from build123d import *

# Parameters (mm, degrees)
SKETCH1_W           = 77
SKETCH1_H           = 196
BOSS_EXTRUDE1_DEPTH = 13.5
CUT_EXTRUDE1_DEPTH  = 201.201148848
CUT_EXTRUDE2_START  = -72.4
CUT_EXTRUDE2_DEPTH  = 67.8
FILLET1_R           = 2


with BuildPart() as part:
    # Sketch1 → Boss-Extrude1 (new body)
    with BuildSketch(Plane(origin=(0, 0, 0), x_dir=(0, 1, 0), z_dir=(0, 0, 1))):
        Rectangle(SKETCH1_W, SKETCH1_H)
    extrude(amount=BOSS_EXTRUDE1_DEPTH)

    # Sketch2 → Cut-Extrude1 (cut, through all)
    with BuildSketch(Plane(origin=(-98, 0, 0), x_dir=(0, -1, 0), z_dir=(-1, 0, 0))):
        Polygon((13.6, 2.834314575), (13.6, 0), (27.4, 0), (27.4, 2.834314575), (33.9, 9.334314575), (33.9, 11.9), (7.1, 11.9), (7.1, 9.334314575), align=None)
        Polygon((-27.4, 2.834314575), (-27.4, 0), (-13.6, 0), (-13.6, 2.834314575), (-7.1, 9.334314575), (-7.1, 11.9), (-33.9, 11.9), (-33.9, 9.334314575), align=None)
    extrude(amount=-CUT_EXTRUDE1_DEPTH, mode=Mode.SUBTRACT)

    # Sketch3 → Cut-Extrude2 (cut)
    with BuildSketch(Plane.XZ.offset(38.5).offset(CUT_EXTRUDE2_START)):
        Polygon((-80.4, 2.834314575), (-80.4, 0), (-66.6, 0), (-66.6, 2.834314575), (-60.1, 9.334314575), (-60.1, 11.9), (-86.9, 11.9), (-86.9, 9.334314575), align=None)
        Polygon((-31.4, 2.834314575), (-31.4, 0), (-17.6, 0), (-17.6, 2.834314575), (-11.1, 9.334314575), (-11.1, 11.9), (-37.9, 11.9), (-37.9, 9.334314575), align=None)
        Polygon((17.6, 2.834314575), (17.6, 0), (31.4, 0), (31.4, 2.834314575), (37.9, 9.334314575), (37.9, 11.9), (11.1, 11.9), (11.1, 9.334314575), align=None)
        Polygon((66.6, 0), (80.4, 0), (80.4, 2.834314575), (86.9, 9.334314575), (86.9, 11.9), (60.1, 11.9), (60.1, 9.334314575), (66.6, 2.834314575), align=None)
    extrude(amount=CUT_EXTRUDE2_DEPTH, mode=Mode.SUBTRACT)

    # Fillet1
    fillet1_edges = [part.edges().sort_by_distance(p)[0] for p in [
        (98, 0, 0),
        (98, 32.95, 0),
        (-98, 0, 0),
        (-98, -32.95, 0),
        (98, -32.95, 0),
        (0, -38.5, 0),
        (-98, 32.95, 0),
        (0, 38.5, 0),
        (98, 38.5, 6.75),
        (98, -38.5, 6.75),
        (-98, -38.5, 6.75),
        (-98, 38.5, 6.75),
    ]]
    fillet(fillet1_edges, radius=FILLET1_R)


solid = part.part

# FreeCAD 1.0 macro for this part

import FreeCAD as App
import Part
import Sketcher

V = App.Vector
Q = App.Units.Quantity


def edges_at(feature, points):
    """Names of the edges that pass closest to the given points."""
    edges = feature.Shape.Edges
    near = lambda p: min(range(len(edges)), key=lambda i: edges[i].distToShape(Part.Vertex(*p))[0])
    return sorted({f"Edge{near(p) + 1}" for p in points})


def add_polygon(sketch, points):
    """Adds a closed chain of lines whose ends are joined by coincident constraints."""
    first, n = sketch.GeometryCount, len(points)
    for a, b in zip(points, points[1:] + points[:1]):
        sketch.addGeometry(Part.LineSegment(App.Vector(*a, 0), App.Vector(*b, 0)), False)
    for i in range(n):
        sketch.addConstraint(Sketcher.Constraint("Coincident", first + i, 2, first + (i + 1) % n, 1))

doc = App.newDocument("Part")
body = doc.addObject("PartDesign::Body", "Body")

# Sketch on XY plane
sketch1 = body.newObject("Sketcher::SketchObject", "Sketch")
sketch1.AttachmentSupport = (doc.getObject("XY_Plane"), [""])
sketch1.MapMode = "FlatFace"
add_polygon(sketch1, [(-98, -38.5), (98, -38.5), (98, 38.5), (-98, 38.5)])  # lines 0-3
sketch1.addConstraint(Sketcher.Constraint("Horizontal", 0))
sketch1.addConstraint(Sketcher.Constraint("Vertical", 1))
sketch1.addConstraint(Sketcher.Constraint("Horizontal", 2))
sketch1.addConstraint(Sketcher.Constraint("Vertical", 3))
sketch1.addConstraint(Sketcher.Constraint("Symmetric", 0, 2, 2, 2, -1, 1))
sketch1.addConstraint(Sketcher.Constraint("DistanceX", 0, 1, 0, 2, Q("196 mm")))
sketch1.addConstraint(Sketcher.Constraint("DistanceY", 1, 1, 1, 2, Q("77 mm")))
pad1 = body.newObject("PartDesign::Pad", "Pad")
pad1.Profile = sketch1
pad1.Length = 13.5

# Sketch on YZ plane
sketch2 = body.newObject("Sketcher::SketchObject", "Sketch001")
sketch2.AttachmentSupport = (doc.getObject("YZ_Plane"), [""])
sketch2.MapMode = "FlatFace"
sketch2.AttachmentOffset = App.Placement(V(0, 0, -98), App.Rotation())
add_polygon(sketch2, [(-13.6, 2.834315), (-13.6, 0), (-27.4, 0), (-27.4, 2.834315), (-33.9, 9.334315), (-33.9, 11.9), (-7.1, 11.9), (-7.1, 9.334315)])  # lines 0-7
add_polygon(sketch2, [(27.4, 2.834315), (27.4, 0), (13.6, 0), (13.6, 2.834315), (7.1, 9.334315), (7.1, 11.9), (33.9, 11.9), (33.9, 9.334315)])  # lines 8-15
sketch2.addConstraint(Sketcher.Constraint("Vertical", 0))
sketch2.addConstraint(Sketcher.Constraint("Horizontal", 1))
sketch2.addConstraint(Sketcher.Constraint("Vertical", 2))
sketch2.addConstraint(Sketcher.Constraint("Vertical", 4))
sketch2.addConstraint(Sketcher.Constraint("Horizontal", 5))
sketch2.addConstraint(Sketcher.Constraint("Vertical", 6))
sketch2.addConstraint(Sketcher.Constraint("Vertical", 8))
sketch2.addConstraint(Sketcher.Constraint("Horizontal", 9))
sketch2.addConstraint(Sketcher.Constraint("Vertical", 10))
sketch2.addConstraint(Sketcher.Constraint("Vertical", 12))
sketch2.addConstraint(Sketcher.Constraint("Horizontal", 13))
sketch2.addConstraint(Sketcher.Constraint("Vertical", 14))
sketch2.addConstraint(Sketcher.Constraint("Symmetric", 1, 2, 8, 2, -1, 1))
sketch2.addConstraint(Sketcher.Constraint("Symmetric", 0, 2, 9, 2, -2))
sketch2.addConstraint(Sketcher.Constraint("Symmetric", 6, 2, 11, 2, -2))
sketch2.addConstraint(Sketcher.Constraint("Symmetric", 4, 2, 13, 2, -2))
sketch2.addConstraint(Sketcher.Constraint("Perpendicular", 3, 7))
sketch2.addConstraint(Sketcher.Constraint("Perpendicular", 7, 11))
sketch2.addConstraint(Sketcher.Constraint("Perpendicular", 11, 15))
sketch2.addConstraint(Sketcher.Constraint("Horizontal", 3, 2, 6, 2))
sketch2.addConstraint(Sketcher.Constraint("Horizontal", 2, 2, 7, 2))
sketch2.addConstraint(Sketcher.Constraint("Horizontal", 7, 2, 10, 2))
sketch2.addConstraint(Sketcher.Constraint("Horizontal", 11, 2, 14, 2))
sketch2.addConstraint(Sketcher.Constraint("DistanceX", 1, 2, 1, 1, Q("13.8 mm")))
sketch2.addConstraint(Sketcher.Constraint("DistanceX", 5, 1, 5, 2, Q("26.8 mm")))
sketch2.addConstraint(Sketcher.Constraint("DistanceX", 0, 2, 8, 2, Q("41 mm")))
sketch2.addConstraint(Sketcher.Constraint("DistanceY", -1, 1, 4, 2, Q("11.9 mm")))
sketch2.addConstraint(Sketcher.Constraint("DistanceY", 0, 2, 0, 1, Q("2.834315 mm")))
pocket1 = body.newObject("PartDesign::Pocket", "Pocket")
pocket1.Profile = sketch2
pocket1.Type = "ThroughAll"
pocket1.Reversed = True

# Sketch on XZ plane
sketch3 = body.newObject("Sketcher::SketchObject", "Sketch002")
sketch3.AttachmentSupport = (doc.getObject("XZ_Plane"), [""])
sketch3.MapMode = "FlatFace"
sketch3.AttachmentOffset = App.Placement(V(0, 0, -33.9), App.Rotation())
add_polygon(sketch3, [(-80.4, 2.834315), (-80.4, 0), (-66.6, 0), (-66.6, 2.834315), (-60.1, 9.334315), (-60.1, 11.9), (-86.9, 11.9), (-86.9, 9.334315)])  # lines 0-7
add_polygon(sketch3, [(-31.4, 2.834315), (-31.4, 0), (-17.6, 0), (-17.6, 2.834315), (-11.1, 9.334315), (-11.1, 11.9), (-37.9, 11.9), (-37.9, 9.334315)])  # lines 8-15
add_polygon(sketch3, [(17.6, 2.834315), (17.6, 0), (31.4, 0), (31.4, 2.834315), (37.9, 9.334315), (37.9, 11.9), (11.1, 11.9), (11.1, 9.334315)])  # lines 16-23
add_polygon(sketch3, [(66.6, 0), (80.4, 0), (80.4, 2.834315), (86.9, 9.334315), (86.9, 11.9), (60.1, 11.9), (60.1, 9.334315), (66.6, 2.834315)])  # lines 24-31
sketch3.addConstraint(Sketcher.Constraint("Vertical", 0))
sketch3.addConstraint(Sketcher.Constraint("Horizontal", 1))
sketch3.addConstraint(Sketcher.Constraint("Vertical", 2))
sketch3.addConstraint(Sketcher.Constraint("Vertical", 4))
sketch3.addConstraint(Sketcher.Constraint("Horizontal", 5))
sketch3.addConstraint(Sketcher.Constraint("Vertical", 6))
sketch3.addConstraint(Sketcher.Constraint("Vertical", 8))
sketch3.addConstraint(Sketcher.Constraint("Horizontal", 9))
sketch3.addConstraint(Sketcher.Constraint("Vertical", 10))
sketch3.addConstraint(Sketcher.Constraint("Vertical", 12))
sketch3.addConstraint(Sketcher.Constraint("Horizontal", 13))
sketch3.addConstraint(Sketcher.Constraint("Vertical", 14))
sketch3.addConstraint(Sketcher.Constraint("Vertical", 16))
sketch3.addConstraint(Sketcher.Constraint("Horizontal", 17))
sketch3.addConstraint(Sketcher.Constraint("Vertical", 18))
sketch3.addConstraint(Sketcher.Constraint("Vertical", 20))
sketch3.addConstraint(Sketcher.Constraint("Horizontal", 21))
sketch3.addConstraint(Sketcher.Constraint("Vertical", 22))
sketch3.addConstraint(Sketcher.Constraint("Horizontal", 24))
sketch3.addConstraint(Sketcher.Constraint("Vertical", 25))
sketch3.addConstraint(Sketcher.Constraint("Vertical", 27))
sketch3.addConstraint(Sketcher.Constraint("Horizontal", 28))
sketch3.addConstraint(Sketcher.Constraint("Vertical", 29))
sketch3.addConstraint(Sketcher.Constraint("Vertical", 31))
sketch3.addConstraint(Sketcher.Constraint("Symmetric", 9, 2, 16, 2, -1, 1))
sketch3.addConstraint(Sketcher.Constraint("Symmetric", 0, 2, 24, 2, -1, 1))
sketch3.addConstraint(Sketcher.Constraint("Symmetric", 8, 2, 17, 2, -2))
sketch3.addConstraint(Sketcher.Constraint("Symmetric", 14, 2, 19, 2, -2))
sketch3.addConstraint(Sketcher.Constraint("Symmetric", 12, 2, 21, 2, -2))
sketch3.addConstraint(Sketcher.Constraint("Symmetric", 6, 2, 26, 2, -2))
sketch3.addConstraint(Sketcher.Constraint("Symmetric", 4, 2, 28, 2, -2))
sketch3.addConstraint(Sketcher.Constraint("Symmetric", 2, 2, 30, 2, -2))
sketch3.addConstraint(Sketcher.Constraint("PointOnObject", 0, 2, -1))
sketch3.addConstraint(Sketcher.Constraint("Perpendicular", 3, 7))
sketch3.addConstraint(Sketcher.Constraint("Perpendicular", 7, 11))
sketch3.addConstraint(Sketcher.Constraint("Perpendicular", 11, 15))
sketch3.addConstraint(Sketcher.Constraint("Perpendicular", 15, 19))
sketch3.addConstraint(Sketcher.Constraint("Perpendicular", 19, 23))
sketch3.addConstraint(Sketcher.Constraint("Perpendicular", 23, 26))
sketch3.addConstraint(Sketcher.Constraint("Perpendicular", 26, 30))
sketch3.addConstraint(Sketcher.Constraint("Horizontal", 3, 2, 6, 2))
sketch3.addConstraint(Sketcher.Constraint("Horizontal", 2, 2, 7, 2))
sketch3.addConstraint(Sketcher.Constraint("Horizontal", 7, 2, 10, 2))
sketch3.addConstraint(Sketcher.Constraint("Horizontal", 6, 2, 11, 2))
sketch3.addConstraint(Sketcher.Constraint("Horizontal", 5, 2, 12, 2))
sketch3.addConstraint(Sketcher.Constraint("Horizontal", 11, 2, 14, 2))
sketch3.addConstraint(Sketcher.Constraint("Horizontal", 10, 2, 15, 2))
sketch3.addConstraint(Sketcher.Constraint("Horizontal", 15, 2, 18, 2))
sketch3.addConstraint(Sketcher.Constraint("Horizontal", 19, 2, 22, 2))
sketch3.addConstraint(Sketcher.Constraint("Equal", 1, 9))
sketch3.addConstraint(Sketcher.Constraint("DistanceX", 1, 1, 1, 2, Q("13.8 mm")))
sketch3.addConstraint(Sketcher.Constraint("DistanceX", 5, 2, 5, 1, Q("26.8 mm")))
sketch3.addConstraint(Sketcher.Constraint("DistanceX", 0, 2, 8, 2, Q("49 mm")))
sketch3.addConstraint(Sketcher.Constraint("DistanceX", 8, 2, 16, 2, Q("49 mm")))
sketch3.addConstraint(Sketcher.Constraint("DistanceY", -1, 1, 4, 2, Q("11.9 mm")))
sketch3.addConstraint(Sketcher.Constraint("DistanceY", 0, 2, 0, 1, Q("2.834315 mm")))
pocket2 = body.newObject("PartDesign::Pocket", "Pocket001")
pocket2.Profile = sketch3
pocket2.Length = 67.8
pocket2.Reversed = True
doc.recompute()

fillet = body.newObject("PartDesign::Fillet", "Fillet")
fillet.Base = (pocket2, edges_at(pocket2, [
    (98, 0, 0),
    (98, 32.95, 0),
    (-98, 0, 0),
    (-98, -32.95, 0),
    (98, -32.95, 0),
    (0, -38.5, 0),
    (-98, 32.95, 0),
    (0, 38.5, 0),
    (98, 38.5, 6.75),
    (98, -38.5, 6.75),
    (-98, -38.5, 6.75),
    (-98, 38.5, 6.75),
]))
fillet.Radius = 2

doc.recompute()
